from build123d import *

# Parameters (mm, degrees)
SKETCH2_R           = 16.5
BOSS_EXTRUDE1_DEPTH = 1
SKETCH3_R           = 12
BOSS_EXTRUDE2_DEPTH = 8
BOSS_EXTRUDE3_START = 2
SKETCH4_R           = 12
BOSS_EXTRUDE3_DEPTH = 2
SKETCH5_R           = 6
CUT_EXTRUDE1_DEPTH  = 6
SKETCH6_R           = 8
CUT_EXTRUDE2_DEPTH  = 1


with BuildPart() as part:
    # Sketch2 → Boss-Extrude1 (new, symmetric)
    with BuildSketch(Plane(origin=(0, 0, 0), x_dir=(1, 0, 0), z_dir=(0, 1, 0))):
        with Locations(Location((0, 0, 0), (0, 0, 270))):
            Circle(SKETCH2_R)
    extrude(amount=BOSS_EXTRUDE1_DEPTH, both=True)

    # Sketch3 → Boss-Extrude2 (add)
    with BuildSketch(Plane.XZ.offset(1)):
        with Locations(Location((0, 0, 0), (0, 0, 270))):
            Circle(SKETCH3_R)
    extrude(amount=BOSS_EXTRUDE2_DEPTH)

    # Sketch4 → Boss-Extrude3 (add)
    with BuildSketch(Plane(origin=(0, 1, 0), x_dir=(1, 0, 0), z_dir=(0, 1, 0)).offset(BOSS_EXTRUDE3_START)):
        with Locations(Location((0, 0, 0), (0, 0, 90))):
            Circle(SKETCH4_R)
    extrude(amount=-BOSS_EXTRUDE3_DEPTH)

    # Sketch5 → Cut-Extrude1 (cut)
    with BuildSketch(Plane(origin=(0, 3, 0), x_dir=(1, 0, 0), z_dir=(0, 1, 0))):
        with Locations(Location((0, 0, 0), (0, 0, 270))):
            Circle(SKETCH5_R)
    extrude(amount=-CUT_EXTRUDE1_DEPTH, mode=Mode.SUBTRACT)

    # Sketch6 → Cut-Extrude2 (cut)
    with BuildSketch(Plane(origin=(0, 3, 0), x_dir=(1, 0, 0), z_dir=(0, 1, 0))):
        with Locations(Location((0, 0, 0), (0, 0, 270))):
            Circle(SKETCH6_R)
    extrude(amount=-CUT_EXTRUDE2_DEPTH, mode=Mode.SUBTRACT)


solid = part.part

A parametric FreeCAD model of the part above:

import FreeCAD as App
import Part
import Sketcher

V = App.Vector
Q = App.Units.Quantity

doc = App.newDocument("Part")
body = doc.addObject("PartDesign::Body", "Body")

sketch1 = body.newObject("Sketcher::SketchObject", "Sketch")
sketch1.AttachmentSupport = (doc.getObject("XZ_Plane"), [""])
sketch1.MapMode = "FlatFace"
sketch1.addGeometry(Part.Circle(V(0, 0, 0), V(0, 0, 1), 16), False)
sketch1.addConstraint(Sketcher.Constraint("Coincident", 0, 3, -1, 1))
sketch1.addConstraint(Sketcher.Constraint("Diameter", 0, Q("33 mm")))
pad1 = body.newObject("PartDesign::Pad", "Pad")
pad1.Profile = sketch1
pad1.Length = 2
pad1.Midplane = True

sketch2 = body.newObject("Sketcher::SketchObject", "Sketch001")
sketch2.AttachmentSupport = (doc.getObject("XZ_Plane"), [""])
sketch2.MapMode = "FlatFace"
sketch2.AttachmentOffset = App.Placement(V(0, 0, 1), App.Rotation())
sketch2.addGeometry(Part.Circle(V(0, 0, 0), V(0, 0, 1), 12), False)
sketch2.addConstraint(Sketcher.Constraint("Coincident", 0, 3, -1, 1))
sketch2.addConstraint(Sketcher.Constraint("Diameter", 0, Q("24 mm")))
pad2 = body.newObject("PartDesign::Pad", "Pad001")
pad2.Profile = sketch2
pad2.Length = 8

sketch3 = body.newObject("Sketcher::SketchObject", "Sketch002")
sketch3.AttachmentSupport = (doc.getObject("XZ_Plane"), [""])
sketch3.MapMode = "FlatFace"
sketch3.AttachmentOffset = App.Placement(V(0, 0, -3), App.Rotation())
sketch3.addGeometry(Part.Circle(V(0, 0, 0), V(0, 0, 1), 12), False)
sketch3.addConstraint(Sketcher.Constraint("Coincident", 0, 3, -1, 1))
sketch3.addConstraint(Sketcher.Constraint("Diameter", 0, Q("24 mm")))
pad3 = body.newObject("PartDesign::Pad", "Pad002")
pad3.Profile = sketch3
pad3.Length = 2

sketch4 = body.newObject("Sketcher::SketchObject", "Sketch003")
sketch4.AttachmentSupport = (doc.getObject("XZ_Plane"), [""])
sketch4.MapMode = "FlatFace"
sketch4.AttachmentOffset = App.Placement(V(0, 0, -3), App.Rotation())
sketch4.addGeometry(Part.Circle(V(0, 0, 0), V(0, 0, 1), 6), False)
sketch4.addConstraint(Sketcher.Constraint("Coincident", 0, 3, -1, 1))
sketch4.addConstraint(Sketcher.Constraint("Diameter", 0, Q("12 mm")))
pocket1 = body.newObject("PartDesign::Pocket", "Pocket")
pocket1.Profile = sketch4
pocket1.Length = 6
pocket1.Reversed = True

sketch5 = body.newObject("Sketcher::SketchObject", "Sketch004")
sketch5.AttachmentSupport = (doc.getObject("XZ_Plane"), [""])
sketch5.MapMode = "FlatFace"
sketch5.AttachmentOffset = App.Placement(V(0, 0, -3), App.Rotation())
sketch5.addGeometry(Part.Circle(V(0, 0, 0), V(0, 0, 1), 8), False)
sketch5.addConstraint(Sketcher.Constraint("Coincident", 0, 3, -1, 1))
sketch5.addConstraint(Sketcher.Constraint("Diameter", 0, Q("16 mm")))
pocket2 = body.newObject("PartDesign::Pocket", "Pocket001")
pocket2.Profile = sketch5
pocket2.Length = 1
pocket2.Reversed = True

doc.recompute()
